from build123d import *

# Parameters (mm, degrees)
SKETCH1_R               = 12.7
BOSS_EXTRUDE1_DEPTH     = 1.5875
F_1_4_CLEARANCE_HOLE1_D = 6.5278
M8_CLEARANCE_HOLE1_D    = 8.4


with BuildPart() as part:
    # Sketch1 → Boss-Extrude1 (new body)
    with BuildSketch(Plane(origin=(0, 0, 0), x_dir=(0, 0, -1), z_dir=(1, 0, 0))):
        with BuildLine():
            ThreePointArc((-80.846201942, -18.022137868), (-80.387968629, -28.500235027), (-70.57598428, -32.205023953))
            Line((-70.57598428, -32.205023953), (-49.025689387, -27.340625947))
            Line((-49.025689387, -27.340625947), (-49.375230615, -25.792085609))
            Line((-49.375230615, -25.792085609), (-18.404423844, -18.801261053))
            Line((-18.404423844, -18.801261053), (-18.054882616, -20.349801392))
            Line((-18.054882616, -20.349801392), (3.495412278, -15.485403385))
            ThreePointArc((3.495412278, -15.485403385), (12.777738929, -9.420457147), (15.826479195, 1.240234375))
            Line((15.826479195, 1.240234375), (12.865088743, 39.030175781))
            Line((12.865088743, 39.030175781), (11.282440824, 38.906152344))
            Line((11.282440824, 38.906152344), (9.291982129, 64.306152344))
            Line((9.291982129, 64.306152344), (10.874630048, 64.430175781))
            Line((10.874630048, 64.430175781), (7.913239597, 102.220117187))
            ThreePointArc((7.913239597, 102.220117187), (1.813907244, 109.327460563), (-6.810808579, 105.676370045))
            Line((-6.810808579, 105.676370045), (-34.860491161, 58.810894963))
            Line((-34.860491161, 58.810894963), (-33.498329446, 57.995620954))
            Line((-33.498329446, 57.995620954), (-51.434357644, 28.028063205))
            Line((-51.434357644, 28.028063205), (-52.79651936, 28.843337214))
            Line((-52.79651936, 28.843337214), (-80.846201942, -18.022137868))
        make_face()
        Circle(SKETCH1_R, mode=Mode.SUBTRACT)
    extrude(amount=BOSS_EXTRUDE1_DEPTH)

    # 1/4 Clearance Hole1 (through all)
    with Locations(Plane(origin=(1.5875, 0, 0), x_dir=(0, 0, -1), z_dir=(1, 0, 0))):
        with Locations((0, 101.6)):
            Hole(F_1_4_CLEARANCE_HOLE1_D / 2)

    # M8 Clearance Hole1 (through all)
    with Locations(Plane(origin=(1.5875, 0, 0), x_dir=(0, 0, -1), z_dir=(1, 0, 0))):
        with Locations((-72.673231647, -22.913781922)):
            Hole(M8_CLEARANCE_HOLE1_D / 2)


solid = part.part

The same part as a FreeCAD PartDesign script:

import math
import FreeCAD as App
import Part
import Sketcher
Q = App.Units.Quantity

doc = App.newDocument("Part")
body = doc.addObject("PartDesign::Body", "Body")

# Sketch on YZ plane
sketch1 = doc.addObject("Sketcher::SketchObject", "Sketch")
body.addObject(sketch1)
sketch1.AttachmentSupport = (doc.YZ_Plane, [""])
sketch1.MapMode = "FlatFace"
sketch1.addGeometry(Part.ArcOfCircle(Part.Circle(App.Vector(-22.913782, 72.673232, 0), App.Vector(0, 0, 1), 9.525), math.radians(59.098853), math.radians(192.719808)), False)
sketch1.addGeometry(Part.LineSegment(App.Vector(-32.205024, 70.575984, 0), App.Vector(-27.340626, 49.025689, 0)), False)
sketch1.addGeometry(Part.LineSegment(App.Vector(-27.340626, 49.025689, 0), App.Vector(-25.792086, 49.375231, 0)), False)
sketch1.addGeometry(Part.LineSegment(App.Vector(-25.792086, 49.375231, 0), App.Vector(-18.801261, 18.404424, 0)), False)
sketch1.addGeometry(Part.LineSegment(App.Vector(-18.801261, 18.404424, 0), App.Vector(-20.349801, 18.054883, 0)), False)
sketch1.addGeometry(Part.LineSegment(App.Vector(-20.349801, 18.054883, 0), App.Vector(-15.485403, -3.495412, 0)), False)
sketch1.addGeometry(Part.ArcOfCircle(Part.Circle(App.Vector(0, 0, 0), App.Vector(0, 0, 1), 15.875), math.radians(-167.280192), math.radians(-85.519201)), False)
sketch1.addGeometry(Part.LineSegment(App.Vector(1.240234, -15.826479, 0), App.Vector(39.030176, -12.865089, 0)), False)
sketch1.addGeometry(Part.LineSegment(App.Vector(39.030176, -12.865089, 0), App.Vector(38.906152, -11.282441, 0)), False)
sketch1.addGeometry(Part.LineSegment(App.Vector(38.906152, -11.282441, 0), App.Vector(64.306152, -9.291982, 0)), False)
sketch1.addGeometry(Part.LineSegment(App.Vector(64.306152, -9.291982, 0), App.Vector(64.430176, -10.87463, 0)), False)
sketch1.addGeometry(Part.LineSegment(App.Vector(64.430176, -10.87463, 0), App.Vector(102.220117, -7.91324, 0)), False)
sketch1.addGeometry(Part.ArcOfCircle(Part.Circle(App.Vector(101.6, 0, 0), App.Vector(0, 0, 1), 7.9375), math.radians(-85.519201), math.radians(59.098853)), False)
sketch1.addGeometry(Part.LineSegment(App.Vector(105.67637, 6.810809, 0), App.Vector(58.810895, 34.860491, 0)), False)
sketch1.addGeometry(Part.LineSegment(App.Vector(58.810895, 34.860491, 0), App.Vector(57.995621, 33.498329, 0)), False)
sketch1.addGeometry(Part.LineSegment(App.Vector(57.995621, 33.498329, 0), App.Vector(28.028063, 51.434358, 0)), False)
sketch1.addGeometry(Part.LineSegment(App.Vector(28.028063, 51.434358, 0), App.Vector(28.843337, 52.796519, 0)), False)
sketch1.addGeometry(Part.LineSegment(App.Vector(28.843337, 52.796519, 0), App.Vector(-18.022138, 80.846202, 0)), False)
sketch1.addGeometry(Part.Circle(App.Vector(0, 0, 0), App.Vector(0, 0, 1), 12.7), False)
sketch1.addConstraint(Sketcher.Constraint("Coincident", 0, 2, 1, 1))
sketch1.addConstraint(Sketcher.Constraint("Coincident", 1, 2, 2, 1))
sketch1.addConstraint(Sketcher.Constraint("Coincident", 2, 2, 3, 1))
sketch1.addConstraint(Sketcher.Constraint("Coincident", 3, 2, 4, 1))
sketch1.addConstraint(Sketcher.Constraint("Coincident", 4, 2, 5, 1))
sketch1.addConstraint(Sketcher.Constraint("Coincident", 5, 2, 6, 1))
sketch1.addConstraint(Sketcher.Constraint("Coincident", 6, 2, 7, 1))
sketch1.addConstraint(Sketcher.Constraint("Coincident", 7, 2, 8, 1))
sketch1.addConstraint(Sketcher.Constraint("Coincident", 8, 2, 9, 1))
sketch1.addConstraint(Sketcher.Constraint("Coincident", 9, 2, 10, 1))
sketch1.addConstraint(Sketcher.Constraint("Coincident", 10, 2, 11, 1))
sketch1.addConstraint(Sketcher.Constraint("Coincident", 11, 2, 12, 1))
sketch1.addConstraint(Sketcher.Constraint("Coincident", 12, 2, 13, 1))
sketch1.addConstraint(Sketcher.Constraint("Coincident", 13, 2, 14, 1))
sketch1.addConstraint(Sketcher.Constraint("Coincident", 14, 2, 15, 1))
sketch1.addConstraint(Sketcher.Constraint("Coincident", 15, 2, 16, 1))
sketch1.addConstraint(Sketcher.Constraint("Coincident", 16, 2, 17, 1))
sketch1.addConstraint(Sketcher.Constraint("Coincident", 17, 2, 0, 1))
sketch1.addConstraint(Sketcher.Constraint("Coincident", 6, 3, -1, 1))
sketch1.addConstraint(Sketcher.Constraint("Coincident", 18, 3, -1, 1))
sketch1.addConstraint(Sketcher.Constraint("PointOnObject", 12, 3, -1))
sketch1.addConstraint(Sketcher.Constraint("Diameter", 18, Q("1 in")))
sketch1.addConstraint(Sketcher.Constraint("DistanceX", -1, 1, 12, 3, Q("4 in")))
sketch1.addConstraint(Sketcher.Constraint("Radius", 0, Q("0.375 in")))
sketch1.addConstraint(Sketcher.Constraint("Radius", 6, Q("0.625 in")))
sketch1.addConstraint(Sketcher.Constraint("Radius", 12, Q("0.3125 in")))
sketch1.addConstraint(Sketcher.Constraint("DistanceX", 8, 2, 9, 2, Q("1 in")))
sketch1.addConstraint(Sketcher.Constraint("DistanceX", 7, 2, 10, 2, Q("1 in")))
sketch1.addConstraint(Sketcher.Constraint("Distance", 3, Q("1.25 in")))
sketch1.addConstraint(Sketcher.Constraint("Distance", 2, Q("0.0625 in")))
sketch1.addConstraint(Sketcher.Constraint("Distance", 4, Q("0.0625 in")))
sketch1.addConstraint(Sketcher.Constraint("Distance", 8, Q("0.0625 in")))
sketch1.addConstraint(Sketcher.Constraint("Distance", 10, Q("0.0625 in")))
sketch1.addConstraint(Sketcher.Constraint("Distance", 14, Q("0.0625 in")))
sketch1.addConstraint(Sketcher.Constraint("Distance", 15, Q("1.375 in")))
sketch1.addConstraint(Sketcher.Constraint("Distance", 16, Q("0.0625 in")))
sketch1.addConstraint(Sketcher.Constraint("DistanceX", 5, 2, 8, 2, Q("2.1413998 in")))
sketch1.addConstraint(Sketcher.Constraint("DistanceX", 4, 2, -1, 1, Q("20.349801 mm")))
sketch1.addConstraint(Sketcher.Constraint("DistanceY", -1, 1, 17, 2, Q("80.846202 mm")))
sketch1.addConstraint(Sketcher.Constraint("DistanceX", 0, 2, 1, 2, Q("4.864398 mm")))
sketch1.addConstraint(Sketcher.Constraint("DistanceY", 2, 2, 0, 3, Q("23.298001 mm")))
sketch1.addConstraint(Sketcher.Constraint("DistanceX", 4, 2, 5, 2, Q("4.864398 mm")))
sketch1.addConstraint(Sketcher.Constraint("DistanceY", 5, 2, 1, 2, Q("52.521102 mm")))
sketch1.addConstraint(Sketcher.Constraint("DistanceY", 8, 2, 11, 2, Q("3.369201 mm")))
sketch1.addConstraint(Sketcher.Constraint("Distance", 9, Q("25.477871 mm")))
sketch1.addConstraint(Sketcher.Constraint("Distance", 13, Q("54.618289 mm")))
sketch1.addConstraint(Sketcher.Constraint("Distance", 17, Q("54.618289 mm")))
sketch1.addConstraint(Sketcher.Constraint("DistanceX", 0, 3, -1, 1, Q("22.913782 mm")))
sketch1.addConstraint(Sketcher.Constraint("DistanceY", -1, 1, 0, 3, Q("72.673232 mm")))
sketch1.addConstraint(Sketcher.Constraint("DistanceX", 3, 2, -1, 1, Q("18.801261 mm")))
sketch1.addConstraint(Sketcher.Constraint("DistanceY", 6, 2, -1, 1, Q("15.826479 mm")))
sketch1.addConstraint(Sketcher.Constraint("DistanceY", 7, 2, -1, 1, Q("12.865089 mm")))
sketch1.addConstraint(Sketcher.Constraint("DistanceY", 8, 2, -1, 1, Q("11.282441 mm")))
sketch1.addConstraint(Sketcher.Constraint("DistanceX", -1, 1, 12, 2, Q("105.67637 mm")))
sketch1.addConstraint(Sketcher.Constraint("DistanceY", -1, 1, 13, 2, Q("34.860491 mm")))
sketch1.addConstraint(Sketcher.Constraint("DistanceX", -1, 1, 14, 2, Q("57.995621 mm")))
sketch1.addConstraint(Sketcher.Constraint("DistanceY", -1, 1, 16, 2, Q("52.796519 mm")))
sketch1.addConstraint(Sketcher.Constraint("DistanceY", 3, 2, 0, 2, Q("52.17156 mm")))
pad1 = doc.addObject("PartDesign::Pad", "Pad")
body.addObject(pad1)
pad1.Profile = sketch1
pad1.Length = Q("0.0625 in")

# Sketch on YZ plane
sketch2 = doc.addObject("Sketcher::SketchObject", "Sketch001")
body.addObject(sketch2)
sketch2.AttachmentSupport = (doc.YZ_Plane, [""])
sketch2.MapMode = "FlatFace"
sketch2.AttachmentOffset = App.Placement(App.Vector(0, 0, 0.0625 * 25.4), App.Rotation())
sketch2.addGeometry(Part.Circle(App.Vector(101.6, 0, 0), App.Vector(0, 0, 1), 3.3), False)
sketch2.addConstraint(Sketcher.Constraint("PointOnObject", 0, 3, -1))
sketch2.addConstraint(Sketcher.Constraint("Diameter", 0, Q("0.257 in")))
sketch2.addConstraint(Sketcher.Constraint("DistanceX", -1, 1, 0, 3, Q("4 in")))
doc.recompute()
hole = doc.addObject("PartDesign::Hole", "Hole")
body.addObject(hole)
hole.Profile = sketch2
hole.ThreadType = "None"
hole.Diameter = Q("0.257 in")
hole.DepthType = "ThroughAll"

# Sketch on YZ plane
sketch3 = doc.addObject("Sketcher::SketchObject", "Sketch002")
body.addObject(sketch3)
sketch3.AttachmentSupport = (doc.YZ_Plane, [""])
sketch3.MapMode = "FlatFace"
sketch3.AttachmentOffset = App.Placement(App.Vector(0, 0, 0.0625 * 25.4), App.Rotation())
sketch3.addGeometry(Part.Circle(App.Vector(-22.9, 72.7, 0), App.Vector(0, 0, 1), 4.2), False)
sketch3.addConstraint(Sketcher.Constraint("Diameter", 0, Q("8.4 mm")))
sketch3.addConstraint(Sketcher.Constraint("DistanceX", 0, 3, -1, 1, Q("22.913782 mm")))
sketch3.addConstraint(Sketcher.Constraint("DistanceY", -1, 1, 0, 3, Q("72.673232 mm")))
doc.recompute()
hole2 = doc.addObject("PartDesign::Hole", "Hole001")
body.addObject(hole2)
hole2.Profile = sketch3
hole2.ThreadType = "None"
hole2.Diameter = 8.4
hole2.DepthType = "ThroughAll"

doc.recompute()
